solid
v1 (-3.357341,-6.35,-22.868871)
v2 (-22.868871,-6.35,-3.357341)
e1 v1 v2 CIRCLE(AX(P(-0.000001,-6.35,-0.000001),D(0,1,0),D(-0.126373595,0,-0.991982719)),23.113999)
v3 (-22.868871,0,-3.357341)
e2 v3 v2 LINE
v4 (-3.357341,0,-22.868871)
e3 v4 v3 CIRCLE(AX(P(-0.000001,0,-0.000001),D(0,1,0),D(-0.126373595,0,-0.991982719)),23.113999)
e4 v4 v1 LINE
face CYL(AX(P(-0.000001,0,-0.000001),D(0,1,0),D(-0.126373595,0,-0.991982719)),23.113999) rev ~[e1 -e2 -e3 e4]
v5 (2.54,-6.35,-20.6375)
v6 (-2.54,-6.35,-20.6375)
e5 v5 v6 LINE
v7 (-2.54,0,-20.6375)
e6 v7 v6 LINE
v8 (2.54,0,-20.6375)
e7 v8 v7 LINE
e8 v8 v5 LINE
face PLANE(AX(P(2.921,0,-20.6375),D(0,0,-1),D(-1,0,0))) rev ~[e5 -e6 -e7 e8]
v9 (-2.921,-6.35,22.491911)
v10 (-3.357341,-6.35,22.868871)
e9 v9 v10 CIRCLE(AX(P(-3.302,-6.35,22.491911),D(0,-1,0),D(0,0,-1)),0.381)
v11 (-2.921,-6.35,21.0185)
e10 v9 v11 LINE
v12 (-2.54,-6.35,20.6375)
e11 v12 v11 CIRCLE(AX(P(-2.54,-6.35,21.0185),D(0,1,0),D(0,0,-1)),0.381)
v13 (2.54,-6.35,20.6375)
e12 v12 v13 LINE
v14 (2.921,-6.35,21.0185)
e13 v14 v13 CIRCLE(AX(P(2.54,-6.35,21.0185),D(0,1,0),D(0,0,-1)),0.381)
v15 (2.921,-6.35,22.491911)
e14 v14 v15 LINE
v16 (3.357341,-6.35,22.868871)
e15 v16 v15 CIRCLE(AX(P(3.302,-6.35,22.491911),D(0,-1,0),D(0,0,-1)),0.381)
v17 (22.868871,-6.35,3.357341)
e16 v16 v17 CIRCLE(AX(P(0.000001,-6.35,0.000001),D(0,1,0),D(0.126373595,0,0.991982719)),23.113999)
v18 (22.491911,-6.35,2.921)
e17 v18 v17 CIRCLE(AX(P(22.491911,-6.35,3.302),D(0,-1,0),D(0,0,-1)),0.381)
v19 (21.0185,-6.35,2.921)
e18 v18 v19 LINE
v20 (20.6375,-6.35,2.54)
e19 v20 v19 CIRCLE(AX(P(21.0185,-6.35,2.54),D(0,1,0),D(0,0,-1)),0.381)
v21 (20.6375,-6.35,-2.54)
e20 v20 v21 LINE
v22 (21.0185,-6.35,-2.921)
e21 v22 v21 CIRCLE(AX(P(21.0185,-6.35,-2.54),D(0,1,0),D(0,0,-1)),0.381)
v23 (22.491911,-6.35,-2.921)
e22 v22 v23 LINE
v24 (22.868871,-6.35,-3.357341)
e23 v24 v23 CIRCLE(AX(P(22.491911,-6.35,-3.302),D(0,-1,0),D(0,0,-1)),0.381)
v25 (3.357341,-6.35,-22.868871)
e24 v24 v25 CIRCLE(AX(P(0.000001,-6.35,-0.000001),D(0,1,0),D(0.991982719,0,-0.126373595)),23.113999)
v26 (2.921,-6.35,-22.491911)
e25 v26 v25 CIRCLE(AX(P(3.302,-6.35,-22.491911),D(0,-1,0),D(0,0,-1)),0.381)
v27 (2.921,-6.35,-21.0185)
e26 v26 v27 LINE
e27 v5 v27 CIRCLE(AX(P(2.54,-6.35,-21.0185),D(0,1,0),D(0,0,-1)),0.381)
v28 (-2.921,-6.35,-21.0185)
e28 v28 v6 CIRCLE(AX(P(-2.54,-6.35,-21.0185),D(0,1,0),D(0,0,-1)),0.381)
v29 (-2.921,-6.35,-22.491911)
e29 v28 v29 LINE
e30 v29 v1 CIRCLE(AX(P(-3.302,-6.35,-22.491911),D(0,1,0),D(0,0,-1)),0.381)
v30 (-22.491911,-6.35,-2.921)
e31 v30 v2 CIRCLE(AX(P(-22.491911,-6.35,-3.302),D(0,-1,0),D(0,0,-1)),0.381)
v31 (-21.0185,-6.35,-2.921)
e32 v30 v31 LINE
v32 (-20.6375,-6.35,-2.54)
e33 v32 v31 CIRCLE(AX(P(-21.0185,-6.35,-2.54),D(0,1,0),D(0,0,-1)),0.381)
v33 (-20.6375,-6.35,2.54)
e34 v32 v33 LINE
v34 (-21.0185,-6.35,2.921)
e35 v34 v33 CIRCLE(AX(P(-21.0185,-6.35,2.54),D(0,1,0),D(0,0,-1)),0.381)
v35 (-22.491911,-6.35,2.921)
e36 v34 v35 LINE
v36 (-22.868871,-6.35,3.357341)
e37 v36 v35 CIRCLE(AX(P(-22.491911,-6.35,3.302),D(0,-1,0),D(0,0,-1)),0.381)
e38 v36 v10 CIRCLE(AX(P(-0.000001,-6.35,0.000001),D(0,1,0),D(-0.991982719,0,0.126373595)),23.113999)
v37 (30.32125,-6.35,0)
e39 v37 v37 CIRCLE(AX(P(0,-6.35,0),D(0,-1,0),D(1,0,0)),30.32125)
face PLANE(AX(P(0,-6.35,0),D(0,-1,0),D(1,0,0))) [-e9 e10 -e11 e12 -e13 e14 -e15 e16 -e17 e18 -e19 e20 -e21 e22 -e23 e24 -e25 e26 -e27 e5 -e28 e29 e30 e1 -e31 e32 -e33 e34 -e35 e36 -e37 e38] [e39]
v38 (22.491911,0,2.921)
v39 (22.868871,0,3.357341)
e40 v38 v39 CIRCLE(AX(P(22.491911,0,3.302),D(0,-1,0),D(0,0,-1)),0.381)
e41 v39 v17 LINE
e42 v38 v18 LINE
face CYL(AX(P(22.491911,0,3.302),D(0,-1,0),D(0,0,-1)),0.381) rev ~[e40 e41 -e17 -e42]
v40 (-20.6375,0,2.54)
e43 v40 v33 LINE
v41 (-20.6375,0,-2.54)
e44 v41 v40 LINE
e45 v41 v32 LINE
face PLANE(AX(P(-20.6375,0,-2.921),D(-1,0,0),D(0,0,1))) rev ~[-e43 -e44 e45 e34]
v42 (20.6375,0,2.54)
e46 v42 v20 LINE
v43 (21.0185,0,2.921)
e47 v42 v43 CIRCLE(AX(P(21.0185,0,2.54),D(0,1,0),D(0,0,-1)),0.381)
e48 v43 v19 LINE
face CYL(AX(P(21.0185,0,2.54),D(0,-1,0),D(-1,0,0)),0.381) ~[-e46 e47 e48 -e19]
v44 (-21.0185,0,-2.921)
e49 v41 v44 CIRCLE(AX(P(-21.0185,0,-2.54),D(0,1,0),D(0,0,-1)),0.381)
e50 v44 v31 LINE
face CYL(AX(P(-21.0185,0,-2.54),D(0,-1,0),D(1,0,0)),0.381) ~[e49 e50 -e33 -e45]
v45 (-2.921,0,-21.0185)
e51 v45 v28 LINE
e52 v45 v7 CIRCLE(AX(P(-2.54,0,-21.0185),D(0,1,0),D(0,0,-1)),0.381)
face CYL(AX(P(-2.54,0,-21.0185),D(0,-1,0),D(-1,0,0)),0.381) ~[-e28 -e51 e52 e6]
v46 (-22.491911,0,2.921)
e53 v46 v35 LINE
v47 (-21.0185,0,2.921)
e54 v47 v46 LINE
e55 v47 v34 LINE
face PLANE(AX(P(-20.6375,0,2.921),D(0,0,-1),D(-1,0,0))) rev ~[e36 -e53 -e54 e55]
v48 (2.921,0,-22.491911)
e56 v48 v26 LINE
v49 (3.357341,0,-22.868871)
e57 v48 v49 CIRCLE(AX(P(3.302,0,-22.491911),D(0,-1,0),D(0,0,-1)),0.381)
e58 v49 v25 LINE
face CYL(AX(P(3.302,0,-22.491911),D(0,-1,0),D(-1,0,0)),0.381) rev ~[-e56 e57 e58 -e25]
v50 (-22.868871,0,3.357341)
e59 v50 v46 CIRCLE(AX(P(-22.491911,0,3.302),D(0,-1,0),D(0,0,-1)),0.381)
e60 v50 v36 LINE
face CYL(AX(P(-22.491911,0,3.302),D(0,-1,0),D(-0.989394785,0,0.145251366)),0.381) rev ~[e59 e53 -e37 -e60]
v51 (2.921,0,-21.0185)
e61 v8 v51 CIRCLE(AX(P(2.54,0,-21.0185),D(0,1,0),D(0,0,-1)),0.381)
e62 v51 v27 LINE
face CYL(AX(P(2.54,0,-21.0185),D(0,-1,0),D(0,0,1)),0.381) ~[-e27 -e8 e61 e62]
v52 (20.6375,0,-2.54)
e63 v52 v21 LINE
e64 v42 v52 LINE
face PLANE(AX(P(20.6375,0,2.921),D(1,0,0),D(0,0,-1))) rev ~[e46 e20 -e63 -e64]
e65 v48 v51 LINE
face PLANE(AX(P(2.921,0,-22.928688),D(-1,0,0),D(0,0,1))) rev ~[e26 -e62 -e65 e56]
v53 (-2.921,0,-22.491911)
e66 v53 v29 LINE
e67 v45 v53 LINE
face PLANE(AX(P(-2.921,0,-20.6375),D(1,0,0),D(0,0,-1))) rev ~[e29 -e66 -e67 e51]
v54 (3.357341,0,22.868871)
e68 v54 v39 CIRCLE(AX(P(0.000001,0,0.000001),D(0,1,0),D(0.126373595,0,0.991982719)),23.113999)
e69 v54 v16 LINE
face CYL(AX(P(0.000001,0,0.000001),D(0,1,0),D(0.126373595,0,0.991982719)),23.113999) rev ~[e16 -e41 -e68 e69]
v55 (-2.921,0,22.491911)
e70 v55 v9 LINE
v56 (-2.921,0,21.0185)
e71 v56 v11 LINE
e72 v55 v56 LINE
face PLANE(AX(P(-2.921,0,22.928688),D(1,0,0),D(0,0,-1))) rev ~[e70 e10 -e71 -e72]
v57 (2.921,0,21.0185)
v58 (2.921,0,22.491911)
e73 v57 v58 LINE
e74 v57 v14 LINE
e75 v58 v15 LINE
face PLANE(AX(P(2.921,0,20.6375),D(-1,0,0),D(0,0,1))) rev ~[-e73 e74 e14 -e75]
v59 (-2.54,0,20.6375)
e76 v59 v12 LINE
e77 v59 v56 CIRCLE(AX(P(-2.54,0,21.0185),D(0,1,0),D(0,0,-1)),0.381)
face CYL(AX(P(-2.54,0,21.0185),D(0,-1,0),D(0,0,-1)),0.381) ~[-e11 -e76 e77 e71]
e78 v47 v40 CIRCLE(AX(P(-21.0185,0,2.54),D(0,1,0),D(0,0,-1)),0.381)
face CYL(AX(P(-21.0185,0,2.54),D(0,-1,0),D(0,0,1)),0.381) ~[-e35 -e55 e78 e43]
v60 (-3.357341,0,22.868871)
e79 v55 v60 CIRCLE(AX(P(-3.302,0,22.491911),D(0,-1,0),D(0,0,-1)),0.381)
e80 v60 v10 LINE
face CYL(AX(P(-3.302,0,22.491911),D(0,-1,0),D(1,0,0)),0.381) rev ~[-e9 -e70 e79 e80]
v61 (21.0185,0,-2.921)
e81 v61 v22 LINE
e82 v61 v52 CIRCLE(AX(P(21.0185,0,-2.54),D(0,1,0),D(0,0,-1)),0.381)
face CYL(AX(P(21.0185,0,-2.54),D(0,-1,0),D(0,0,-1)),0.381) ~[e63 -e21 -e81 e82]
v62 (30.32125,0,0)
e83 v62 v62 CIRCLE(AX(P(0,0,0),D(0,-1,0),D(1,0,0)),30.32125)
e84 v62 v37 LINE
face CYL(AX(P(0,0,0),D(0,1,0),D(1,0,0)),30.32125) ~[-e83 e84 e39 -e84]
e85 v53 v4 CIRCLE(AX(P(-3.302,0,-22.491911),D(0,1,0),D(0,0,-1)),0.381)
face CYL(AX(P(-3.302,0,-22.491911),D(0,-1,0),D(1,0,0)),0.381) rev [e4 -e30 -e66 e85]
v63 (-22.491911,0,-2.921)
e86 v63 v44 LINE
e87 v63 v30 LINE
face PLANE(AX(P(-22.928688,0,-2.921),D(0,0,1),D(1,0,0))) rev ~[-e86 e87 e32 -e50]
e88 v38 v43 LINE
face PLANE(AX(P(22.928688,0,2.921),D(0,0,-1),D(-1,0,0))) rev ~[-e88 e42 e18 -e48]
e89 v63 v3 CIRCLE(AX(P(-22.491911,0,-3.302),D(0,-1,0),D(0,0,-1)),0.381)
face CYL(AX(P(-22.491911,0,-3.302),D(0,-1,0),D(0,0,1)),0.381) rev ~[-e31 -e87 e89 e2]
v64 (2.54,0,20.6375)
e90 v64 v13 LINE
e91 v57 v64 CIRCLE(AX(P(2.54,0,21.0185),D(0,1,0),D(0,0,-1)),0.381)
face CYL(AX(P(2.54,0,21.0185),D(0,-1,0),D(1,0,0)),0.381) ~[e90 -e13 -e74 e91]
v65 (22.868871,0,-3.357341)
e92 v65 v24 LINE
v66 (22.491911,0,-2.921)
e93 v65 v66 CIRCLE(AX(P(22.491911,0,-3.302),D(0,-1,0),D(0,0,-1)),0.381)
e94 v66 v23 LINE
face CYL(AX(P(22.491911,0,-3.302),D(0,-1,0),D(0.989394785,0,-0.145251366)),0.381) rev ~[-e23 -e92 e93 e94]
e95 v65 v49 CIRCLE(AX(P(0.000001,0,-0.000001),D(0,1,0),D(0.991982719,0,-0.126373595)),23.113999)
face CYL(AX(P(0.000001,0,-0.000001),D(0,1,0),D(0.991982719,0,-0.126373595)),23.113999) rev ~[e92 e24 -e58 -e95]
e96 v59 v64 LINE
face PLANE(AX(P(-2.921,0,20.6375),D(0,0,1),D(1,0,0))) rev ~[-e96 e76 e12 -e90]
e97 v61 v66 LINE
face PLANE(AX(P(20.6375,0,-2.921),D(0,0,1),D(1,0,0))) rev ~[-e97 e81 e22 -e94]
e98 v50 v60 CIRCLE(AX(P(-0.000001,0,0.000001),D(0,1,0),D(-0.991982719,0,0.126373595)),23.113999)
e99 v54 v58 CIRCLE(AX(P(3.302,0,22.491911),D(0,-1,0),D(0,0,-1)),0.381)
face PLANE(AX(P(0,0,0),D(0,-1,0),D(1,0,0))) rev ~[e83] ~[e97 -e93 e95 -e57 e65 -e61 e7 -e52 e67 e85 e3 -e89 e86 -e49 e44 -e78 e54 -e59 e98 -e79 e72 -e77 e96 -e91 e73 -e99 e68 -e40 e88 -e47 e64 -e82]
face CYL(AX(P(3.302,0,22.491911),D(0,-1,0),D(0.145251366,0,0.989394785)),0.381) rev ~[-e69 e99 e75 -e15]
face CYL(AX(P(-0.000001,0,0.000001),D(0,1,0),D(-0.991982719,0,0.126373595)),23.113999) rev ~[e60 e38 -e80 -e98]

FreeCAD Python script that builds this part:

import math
import FreeCAD as App
import Part
import Sketcher
Q = App.Units.Quantity


def edges_at(feature, points):
    """Names of the edges that pass closest to the given points."""
    edges = feature.Shape.Edges
    near = lambda p: min(range(len(edges)), key=lambda i: edges[i].distToShape(Part.Vertex(*p))[0])
    return sorted({f"Edge{near(p) + 1}" for p in points})

doc = App.newDocument("Part")
params = doc.addObject("Spreadsheet::Sheet", "Params")
for row, (alias, value) in enumerate([
    ("sketch1_radius", "0.9099999 in"),
    ("sketch1_width", "0.23 in"),
    ("pad1_length", "0.25 in"),
    ("fillet_radius", "0.015 in"),
], start=1):
    params.set(f"A{row}", alias)
    params.set(f"B{row}", "=" + value)
    params.setAlias(f"B{row}", alias)

body = doc.addObject("PartDesign::Body", "Body")

sketch1 = body.newObject("Sketcher::SketchObject", "Sketch")
sketch1.AttachmentSupport = (doc.getObject("XZ_Plane"), [""])
sketch1.MapMode = "FlatFace"
sketch1.addGeometry(Part.Circle(App.Vector(0, 0, 0), App.Vector(0, 0, 1), 30.32125), False)
sketch1.addGeometry(Part.LineSegment(App.Vector(-2.921, -20.6375, 0), App.Vector(-2.921, -22.928688, 0)), False)
sketch1.addGeometry(Part.ArcOfCircle(Part.Circle(App.Vector(-0.000001, -0.000001, 0), App.Vector(0, 0, 1), 23.113999), math.radians(-172.739914), math.radians(-97.260086)), False)
sketch1.addGeometry(Part.LineSegment(App.Vector(-22.928688, -2.921, 0), App.Vector(-20.6375, -2.921, 0)), False)
sketch1.addGeometry(Part.LineSegment(App.Vector(-20.6375, -2.921, 0), App.Vector(-20.6375, 2.921, 0)), False)
sketch1.addGeometry(Part.LineSegment(App.Vector(-20.6375, 2.921, 0), App.Vector(-22.928688, 2.921, 0)), False)
sketch1.addGeometry(Part.ArcOfCircle(Part.Circle(App.Vector(-0.000001, 0.000001, 0), App.Vector(0, 0, 1), 23.113999), math.radians(97.260086), math.radians(172.739914)), False)
sketch1.addGeometry(Part.LineSegment(App.Vector(-2.921, 22.928688, 0), App.Vector(-2.921, 20.6375, 0)), False)
sketch1.addGeometry(Part.LineSegment(App.Vector(-2.921, 20.6375, 0), App.Vector(2.921, 20.6375, 0)), False)
sketch1.addGeometry(Part.LineSegment(App.Vector(2.921, 20.6375, 0), App.Vector(2.921, 22.928688, 0)), False)
sketch1.addGeometry(Part.ArcOfCircle(Part.Circle(App.Vector(0.000001, 0.000001, 0), App.Vector(0, 0, 1), 23.113999), math.radians(7.260086), math.radians(82.739914)), False)
sketch1.addGeometry(Part.LineSegment(App.Vector(22.928688, 2.921, 0), App.Vector(20.6375, 2.921, 0)), False)
sketch1.addGeometry(Part.LineSegment(App.Vector(20.6375, 2.921, 0), App.Vector(20.6375, -2.921, 0)), False)
sketch1.addGeometry(Part.LineSegment(App.Vector(20.6375, -2.921, 0), App.Vector(22.928688, -2.921, 0)), False)
sketch1.addGeometry(Part.ArcOfCircle(Part.Circle(App.Vector(0.000001, -0.000001, 0), App.Vector(0, 0, 1), 23.113999), math.radians(-82.739914), math.radians(-7.260086)), False)
sketch1.addGeometry(Part.LineSegment(App.Vector(2.921, -22.928688, 0), App.Vector(2.921, -20.6375, 0)), False)
sketch1.addGeometry(Part.LineSegment(App.Vector(2.921, -20.6375, 0), App.Vector(-2.921, -20.6375, 0)), False)
sketch1.addConstraint(Sketcher.Constraint("Coincident", 1, 2, 2, 2))
sketch1.addConstraint(Sketcher.Constraint("Coincident", 2, 1, 3, 1))
sketch1.addConstraint(Sketcher.Constraint("Coincident", 3, 2, 4, 1))
sketch1.addConstraint(Sketcher.Constraint("Coincident", 4, 2, 5, 1))
sketch1.addConstraint(Sketcher.Constraint("Coincident", 5, 2, 6, 2))
sketch1.addConstraint(Sketcher.Constraint("Coincident", 6, 1, 7, 1))
sketch1.addConstraint(Sketcher.Constraint("Coincident", 7, 2, 8, 1))
sketch1.addConstraint(Sketcher.Constraint("Coincident", 8, 2, 9, 1))
sketch1.addConstraint(Sketcher.Constraint("Coincident", 9, 2, 10, 2))
sketch1.addConstraint(Sketcher.Constraint("Coincident", 10, 1, 11, 1))
sketch1.addConstraint(Sketcher.Constraint("Coincident", 11, 2, 12, 1))
sketch1.addConstraint(Sketcher.Constraint("Coincident", 12, 2, 13, 1))
sketch1.addConstraint(Sketcher.Constraint("Coincident", 13, 2, 14, 2))
sketch1.addConstraint(Sketcher.Constraint("Coincident", 14, 1, 15, 1))
sketch1.addConstraint(Sketcher.Constraint("Coincident", 15, 2, 16, 1))
sketch1.addConstraint(Sketcher.Constraint("Coincident", 16, 2, 1, 1))
sketch1.addConstraint(Sketcher.Constraint("Vertical", 1))
sketch1.addConstraint(Sketcher.Constraint("Horizontal", 3))
sketch1.addConstraint(Sketcher.Constraint("Vertical", 4))
sketch1.addConstraint(Sketcher.Constraint("Horizontal", 5))
sketch1.addConstraint(Sketcher.Constraint("Vertical", 7))
sketch1.addConstraint(Sketcher.Constraint("Horizontal", 8))
sketch1.addConstraint(Sketcher.Constraint("Vertical", 9))
sketch1.addConstraint(Sketcher.Constraint("Horizontal", 11))
sketch1.addConstraint(Sketcher.Constraint("Vertical", 12))
sketch1.addConstraint(Sketcher.Constraint("Horizontal", 13))
sketch1.addConstraint(Sketcher.Constraint("Vertical", 15))
sketch1.addConstraint(Sketcher.Constraint("Horizontal", 16))
sketch1.addConstraint(Sketcher.Constraint("Coincident", 0, 3, -1, 1))
sketch1.addConstraint(Sketcher.Constraint("Coincident", 2, 3, -1, 1))
sketch1.addConstraint(Sketcher.Constraint("Coincident", 6, 3, -1, 1))
sketch1.addConstraint(Sketcher.Constraint("Coincident", 10, 3, -1, 1))
sketch1.addConstraint(Sketcher.Constraint("Coincident", 14, 3, -1, 1))
sketch1.addConstraint(Sketcher.Constraint("Equal", 2, 6))
sketch1.addConstraint(Sketcher.Constraint("Equal", 6, 10))
sketch1.addConstraint(Sketcher.Constraint("Equal", 10, 14))
sketch1.addConstraint(Sketcher.Constraint("Symmetric", 3, 2, 11, 2, -1, 1))
sketch1.addConstraint(Sketcher.Constraint("Symmetric", 7, 2, 15, 2, -1, 1))
sketch1.addConstraint(Sketcher.Constraint("Horizontal", 6, 1, 9, 2))
sketch1.addConstraint(Sketcher.Constraint("Horizontal", 5, 2, 10, 1))
sketch1.addConstraint(Sketcher.Constraint("Horizontal", 3, 2, 12, 2))
sketch1.addConstraint(Sketcher.Constraint("Horizontal", 1, 2, 14, 1))
sketch1.addConstraint(Sketcher.Constraint("Equal", 13, 1))
sketch1.addConstraint(Sketcher.Constraint("Equal", 16, 4))
sketch1.addConstraint(Sketcher.Constraint("Radius", 2, Q("0.9099999 in")))
sketch1.addConstraint(Sketcher.Constraint("Diameter", 0, Q("2.3875 in")))
sketch1.addConstraint(Sketcher.Constraint("DistanceX", 8, 1, 8, 2, Q("0.23 in")))
sketch1.addConstraint(Sketcher.Constraint("DistanceX", 3, 2, -1, 1, Q("0.8125 in")))
sketch1.setExpression("Constraints[44]", "Params.sketch1_radius")
sketch1.setExpression("Constraints[46]", "Params.sketch1_width")
pad1 = body.newObject("PartDesign::Pad", "Pad")
pad1.Profile = sketch1
pad1.setExpression("Length", "Params.pad1_length")
doc.recompute()

fillet = body.newObject("PartDesign::Fillet", "Fillet")
fillet.Base = (pad1, edges_at(pad1, [
    (-2.921, -3.175, 20.637),
    (-2.921, -3.175, 22.929),
    (2.921, -3.175, 20.637),
    (-20.637, -3.175, -2.921),
    (22.929, -3.175, -2.921),
    (20.637, -3.175, -2.921),
    (20.637, -3.175, 2.921),
    (-2.921, -3.175, -20.637),
    (2.921, -3.175, -20.637),
    (-2.921, -3.175, -22.929),
    (-20.637, -3.175, 2.921),
    (22.929, -3.175, 2.921),
    (2.921, -3.175, 22.929),
    (-22.929, -3.175, -2.921),
    (2.921, -3.175, -22.929),
    (-22.929, -3.175, 2.921),
]))
fillet.setExpression("Radius", "Params.fillet_radius")

doc.recompute()
